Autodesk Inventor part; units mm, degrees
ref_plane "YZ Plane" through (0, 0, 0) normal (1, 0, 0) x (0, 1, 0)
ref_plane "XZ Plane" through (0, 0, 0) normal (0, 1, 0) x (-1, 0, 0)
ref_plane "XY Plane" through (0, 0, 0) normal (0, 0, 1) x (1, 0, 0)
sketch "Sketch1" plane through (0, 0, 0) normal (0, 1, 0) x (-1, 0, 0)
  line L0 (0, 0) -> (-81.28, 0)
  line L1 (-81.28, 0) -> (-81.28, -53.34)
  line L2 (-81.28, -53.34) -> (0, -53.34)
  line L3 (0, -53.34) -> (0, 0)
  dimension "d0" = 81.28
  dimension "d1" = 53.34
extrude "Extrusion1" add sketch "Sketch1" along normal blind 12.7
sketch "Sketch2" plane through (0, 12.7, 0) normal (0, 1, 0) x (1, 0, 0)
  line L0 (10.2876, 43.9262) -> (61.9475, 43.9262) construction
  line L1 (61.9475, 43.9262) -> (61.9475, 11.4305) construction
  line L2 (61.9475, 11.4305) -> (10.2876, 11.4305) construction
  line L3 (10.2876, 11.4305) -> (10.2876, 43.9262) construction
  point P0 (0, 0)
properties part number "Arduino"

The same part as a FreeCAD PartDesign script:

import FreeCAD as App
import Part
import Sketcher
Q = App.Units.Quantity

doc = App.newDocument("Part")
params = doc.addObject("Spreadsheet::Sheet", "Params")
for row, (alias, value) in enumerate([
    ("sketch1_width", "3.2 in"),
    ("sketch1_height", "2.1 in"),
    ("pad1_length", "0.5 in"),
], start=1):
    params.set(f"A{row}", alias)
    params.set(f"B{row}", "=" + value)
    params.setAlias(f"B{row}", alias)

body = doc.addObject("PartDesign::Body", "Body")

# Sketch on XZ plane
sketch1 = body.newObject("Sketcher::SketchObject", "Sketch")
sketch1.AttachmentSupport = (doc.getObject("XZ_Plane"), [""])
sketch1.MapMode = "FlatFace"
sketch1.addGeometry([
    Part.LineSegment(App.Vector(0, -53.34, 0), App.Vector(0, 0, 0)),
    Part.LineSegment(App.Vector(0, 0, 0), App.Vector(81.28, 0, 0)),
    Part.LineSegment(App.Vector(81.28, 0, 0), App.Vector(81.28, -53.34, 0)),
    Part.LineSegment(App.Vector(81.28, -53.34, 0), App.Vector(0, -53.34, 0)),
], False)
sketch1.addConstraint([
    Sketcher.Constraint("Coincident", 0, 2, 1, 1),
    Sketcher.Constraint("Coincident", 1, 2, 2, 1),
    Sketcher.Constraint("Coincident", 2, 2, 3, 1),
    Sketcher.Constraint("Coincident", 3, 2, 0, 1),
    Sketcher.Constraint("Vertical", 0),
    Sketcher.Constraint("Horizontal", 1),
    Sketcher.Constraint("Vertical", 2),
    Sketcher.Constraint("Horizontal", 3),
    Sketcher.Constraint("Coincident", 0, 2, -1, 1),
    Sketcher.Constraint("DistanceX", 1, 1, 1, 2, Q("3.2 in")),
    Sketcher.Constraint("DistanceY", 0, 1, 0, 2, Q("2.1 in")),
])
sketch1.setExpression("Constraints[9]", "Params.sketch1_width")
sketch1.setExpression("Constraints[10]", "Params.sketch1_height")
pad1 = body.newObject("PartDesign::Pad", "Pad")
pad1.Profile = sketch1
pad1.setExpression("Length", "Params.pad1_length")
pad1.Reversed = True

doc.recompute()
